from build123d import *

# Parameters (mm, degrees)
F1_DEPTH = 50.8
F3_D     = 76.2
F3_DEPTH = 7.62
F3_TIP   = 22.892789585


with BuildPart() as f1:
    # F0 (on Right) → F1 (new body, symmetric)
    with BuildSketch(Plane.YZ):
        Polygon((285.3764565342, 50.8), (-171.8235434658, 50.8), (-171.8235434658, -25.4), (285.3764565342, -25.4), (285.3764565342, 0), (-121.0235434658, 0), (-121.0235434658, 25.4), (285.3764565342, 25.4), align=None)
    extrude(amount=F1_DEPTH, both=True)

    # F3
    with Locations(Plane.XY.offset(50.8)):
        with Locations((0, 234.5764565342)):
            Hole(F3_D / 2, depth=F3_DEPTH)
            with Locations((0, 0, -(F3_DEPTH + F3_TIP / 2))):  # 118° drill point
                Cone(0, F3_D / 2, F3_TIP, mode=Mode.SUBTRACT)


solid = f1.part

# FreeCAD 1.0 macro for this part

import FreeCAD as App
import Part
import Sketcher
Q = App.Units.Quantity

doc = App.newDocument("Part")
body = doc.addObject("PartDesign::Body", "Body")

# Sketch on YZ plane
sketch1 = doc.addObject("Sketcher::SketchObject", "Sketch")
body.addObject(sketch1)
sketch1.AttachmentSupport = (doc.YZ_Plane, [""])
sketch1.MapMode = "FlatFace"
sketch1.addGeometry([
    Part.LineSegment(App.Vector(285.376457, 50.8, 0), App.Vector(-171.823543, 50.8, 0)),  # 0
    Part.LineSegment(App.Vector(-171.823543, 50.8, 0), App.Vector(-171.823543, -25.4, 0)),  # 1
    Part.LineSegment(App.Vector(-171.823543, -25.4, 0), App.Vector(285.376457, -25.4, 0)),  # 2
    Part.LineSegment(App.Vector(285.376457, -25.4, 0), App.Vector(285.376457, 0, 0)),  # 3
    Part.LineSegment(App.Vector(285.376457, 0, 0), App.Vector(-121.023543, 0, 0)),  # 4
    Part.LineSegment(App.Vector(-121.023543, 0, 0), App.Vector(-121.023543, 25.4, 0)),  # 5
    Part.LineSegment(App.Vector(-121.023543, 25.4, 0), App.Vector(285.376457, 25.4, 0)),  # 6
    Part.LineSegment(App.Vector(285.376457, 25.4, 0), App.Vector(285.376457, 50.8, 0)),  # 7
], False)
sketch1.addConstraint([
    Sketcher.Constraint("Coincident", 0, 2, 1, 1),
    Sketcher.Constraint("Coincident", 1, 2, 2, 1),
    Sketcher.Constraint("Coincident", 2, 2, 3, 1),
    Sketcher.Constraint("Coincident", 3, 2, 4, 1),
    Sketcher.Constraint("Coincident", 4, 2, 5, 1),
    Sketcher.Constraint("Coincident", 5, 2, 6, 1),
    Sketcher.Constraint("Coincident", 6, 2, 7, 1),
    Sketcher.Constraint("Coincident", 7, 2, 0, 1),
    Sketcher.Constraint("Horizontal", 0),
    Sketcher.Constraint("Vertical", 1),
    Sketcher.Constraint("Horizontal", 2),
    Sketcher.Constraint("Vertical", 3),
    Sketcher.Constraint("Horizontal", 4),
    Sketcher.Constraint("Vertical", 5),
    Sketcher.Constraint("Horizontal", 6),
    Sketcher.Constraint("Vertical", 7),
    Sketcher.Constraint("Symmetric", 2, 2, 6, 2, -1),
    Sketcher.Constraint("PointOnObject", 3, 2, -1),
    Sketcher.Constraint("Equal", 5, 7),
    Sketcher.Constraint("DistanceX", 0, 2, 0, 1, Q("18 in")),
    Sketcher.Constraint("DistanceX", 4, 2, 4, 1, Q("16 in")),
    Sketcher.Constraint("DistanceY", 1, 2, 1, 1, Q("3 in")),
    Sketcher.Constraint("DistanceX", 0, 2, -1, 1, 171.823543),
])
pad1 = doc.addObject("PartDesign::Pad", "Pad")
body.addObject(pad1)
pad1.Profile = sketch1
pad1.Length = Q("4 in")
pad1.Midplane = True

# Sketch on XY plane
sketch2 = doc.addObject("Sketcher::SketchObject", "Sketch001")
body.addObject(sketch2)
sketch2.AttachmentSupport = (doc.XY_Plane, [""])
sketch2.MapMode = "FlatFace"
sketch2.AttachmentOffset = App.Placement(App.Vector(0, 0, 2 * 25.4), App.Rotation())
sketch2.addGeometry(Part.Circle(App.Vector(0, 234.576457, 0), App.Vector(0, 0, 1), 38.1), False)
sketch2.addConstraint([
    Sketcher.Constraint("PointOnObject", 0, 3, -2),
    Sketcher.Constraint("Diameter", 0, Q("3 in")),
    Sketcher.Constraint("DistanceY", -1, 1, 0, 3, 234.576457),
])
doc.recompute()
hole = doc.addObject("PartDesign::Hole", "Hole")
body.addObject(hole)
hole.Profile = sketch2
hole.ThreadType = "None"
hole.Diameter = Q("3 in")
hole.DepthType = "Dimension"
hole.Depth = Q("0.3 in")
hole.DrillPoint = "Angled"
hole.DrillPointAngle = 118

doc.recompute()
